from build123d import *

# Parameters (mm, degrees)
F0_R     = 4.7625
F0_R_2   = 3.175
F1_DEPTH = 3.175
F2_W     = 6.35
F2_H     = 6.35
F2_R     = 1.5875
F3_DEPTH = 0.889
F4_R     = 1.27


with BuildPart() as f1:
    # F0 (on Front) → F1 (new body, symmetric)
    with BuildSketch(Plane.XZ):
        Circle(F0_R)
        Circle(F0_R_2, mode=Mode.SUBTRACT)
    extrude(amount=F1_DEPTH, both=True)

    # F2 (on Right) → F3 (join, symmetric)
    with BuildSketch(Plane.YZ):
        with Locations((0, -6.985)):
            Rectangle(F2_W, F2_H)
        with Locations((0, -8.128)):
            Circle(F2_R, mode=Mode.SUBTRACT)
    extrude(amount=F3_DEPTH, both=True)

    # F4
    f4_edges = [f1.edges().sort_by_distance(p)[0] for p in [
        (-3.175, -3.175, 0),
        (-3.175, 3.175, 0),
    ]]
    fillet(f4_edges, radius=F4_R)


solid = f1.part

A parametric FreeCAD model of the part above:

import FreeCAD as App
import Part
import Sketcher

V = App.Vector
Q = App.Units.Quantity


def edges_at(feature, points):
    """Names of the edges that pass closest to the given points."""
    edges = feature.Shape.Edges
    near = lambda p: min(range(len(edges)), key=lambda i: edges[i].distToShape(Part.Vertex(*p))[0])
    return sorted({f"Edge{near(p) + 1}" for p in points})

doc = App.newDocument("Part")
body = doc.addObject("PartDesign::Body", "Body")

# Sketch on XZ plane
sketch1 = body.newObject("Sketcher::SketchObject", "Sketch")
sketch1.AttachmentSupport = (doc.getObject("XZ_Plane"), [""])
sketch1.MapMode = "FlatFace"
sketch1.addGeometry([
    Part.Circle(V(0, 0, 0), V(0, 0, 1), 4.8),
    Part.Circle(V(0, 0, 0), V(0, 0, 1), 3.2),
], False)
sketch1.addConstraint([
    Sketcher.Constraint("Coincident", 0, 3, -1, 1),
    Sketcher.Constraint("Coincident", 1, 3, -1, 1),
    Sketcher.Constraint("Diameter", 1, Q("0.25 in")),
    Sketcher.Constraint("Diameter", 0, Q("0.375 in")),
])
pad1 = body.newObject("PartDesign::Pad", "Pad")
pad1.Profile = sketch1
pad1.Length = Q("0.25 in")
pad1.Midplane = True

# Sketch on YZ plane
sketch2 = body.newObject("Sketcher::SketchObject", "Sketch001")
sketch2.AttachmentSupport = (doc.getObject("YZ_Plane"), [""])
sketch2.MapMode = "FlatFace"
sketch2.addGeometry([
    Part.LineSegment(V(-3.2, -3.8, 0), V(-3.2, -10.2, 0)),  # 0
    Part.LineSegment(V(-3.2, -10.2, 0), V(3.2, -10.2, 0)),  # 1
    Part.LineSegment(V(3.2, -10.2, 0), V(3.2, -3.8, 0)),  # 2
    Part.LineSegment(V(3.2, -3.8, 0), V(-3.2, -3.8, 0)),  # 3
    Part.Circle(V(0, -8.1, 0), V(0, 0, 1), 1.6),  # 4
], False)
sketch2.addConstraint([
    Sketcher.Constraint("Coincident", 0, 2, 1, 1),
    Sketcher.Constraint("Coincident", 1, 2, 2, 1),
    Sketcher.Constraint("Coincident", 2, 2, 3, 1),
    Sketcher.Constraint("Coincident", 3, 2, 0, 1),
    Sketcher.Constraint("Vertical", 0),
    Sketcher.Constraint("Horizontal", 1),
    Sketcher.Constraint("Vertical", 2),
    Sketcher.Constraint("Horizontal", 3),
    Sketcher.Constraint("PointOnObject", 4, 3, -2),
    Sketcher.Constraint("Equal", 3, 0),
    Sketcher.Constraint("Diameter", 4, Q("0.125 in")),
    Sketcher.Constraint("DistanceX", 1, 1, 1, 2, Q("0.25 in")),
    Sketcher.Constraint("DistanceY", 0, 2, -1, 1, Q("0.4 in")),
    Sketcher.Constraint("DistanceY", 4, 3, -1, 1, Q("0.32 in")),
    Sketcher.Constraint("DistanceX", 0, 2, -1, 1, Q("0.125 in")),
])
pad2 = body.newObject("PartDesign::Pad", "Pad001")
pad2.Profile = sketch2
pad2.Length = Q("0.07 in")
pad2.Midplane = True
doc.recompute()

fillet = body.newObject("PartDesign::Fillet", "Fillet")
fillet.Base = (pad2, edges_at(pad2, [(-3.175, -3.175, 0), (-3.175, 3.175, 0)]))
fillet.Radius = Q("0.05 in")

doc.recompute()
